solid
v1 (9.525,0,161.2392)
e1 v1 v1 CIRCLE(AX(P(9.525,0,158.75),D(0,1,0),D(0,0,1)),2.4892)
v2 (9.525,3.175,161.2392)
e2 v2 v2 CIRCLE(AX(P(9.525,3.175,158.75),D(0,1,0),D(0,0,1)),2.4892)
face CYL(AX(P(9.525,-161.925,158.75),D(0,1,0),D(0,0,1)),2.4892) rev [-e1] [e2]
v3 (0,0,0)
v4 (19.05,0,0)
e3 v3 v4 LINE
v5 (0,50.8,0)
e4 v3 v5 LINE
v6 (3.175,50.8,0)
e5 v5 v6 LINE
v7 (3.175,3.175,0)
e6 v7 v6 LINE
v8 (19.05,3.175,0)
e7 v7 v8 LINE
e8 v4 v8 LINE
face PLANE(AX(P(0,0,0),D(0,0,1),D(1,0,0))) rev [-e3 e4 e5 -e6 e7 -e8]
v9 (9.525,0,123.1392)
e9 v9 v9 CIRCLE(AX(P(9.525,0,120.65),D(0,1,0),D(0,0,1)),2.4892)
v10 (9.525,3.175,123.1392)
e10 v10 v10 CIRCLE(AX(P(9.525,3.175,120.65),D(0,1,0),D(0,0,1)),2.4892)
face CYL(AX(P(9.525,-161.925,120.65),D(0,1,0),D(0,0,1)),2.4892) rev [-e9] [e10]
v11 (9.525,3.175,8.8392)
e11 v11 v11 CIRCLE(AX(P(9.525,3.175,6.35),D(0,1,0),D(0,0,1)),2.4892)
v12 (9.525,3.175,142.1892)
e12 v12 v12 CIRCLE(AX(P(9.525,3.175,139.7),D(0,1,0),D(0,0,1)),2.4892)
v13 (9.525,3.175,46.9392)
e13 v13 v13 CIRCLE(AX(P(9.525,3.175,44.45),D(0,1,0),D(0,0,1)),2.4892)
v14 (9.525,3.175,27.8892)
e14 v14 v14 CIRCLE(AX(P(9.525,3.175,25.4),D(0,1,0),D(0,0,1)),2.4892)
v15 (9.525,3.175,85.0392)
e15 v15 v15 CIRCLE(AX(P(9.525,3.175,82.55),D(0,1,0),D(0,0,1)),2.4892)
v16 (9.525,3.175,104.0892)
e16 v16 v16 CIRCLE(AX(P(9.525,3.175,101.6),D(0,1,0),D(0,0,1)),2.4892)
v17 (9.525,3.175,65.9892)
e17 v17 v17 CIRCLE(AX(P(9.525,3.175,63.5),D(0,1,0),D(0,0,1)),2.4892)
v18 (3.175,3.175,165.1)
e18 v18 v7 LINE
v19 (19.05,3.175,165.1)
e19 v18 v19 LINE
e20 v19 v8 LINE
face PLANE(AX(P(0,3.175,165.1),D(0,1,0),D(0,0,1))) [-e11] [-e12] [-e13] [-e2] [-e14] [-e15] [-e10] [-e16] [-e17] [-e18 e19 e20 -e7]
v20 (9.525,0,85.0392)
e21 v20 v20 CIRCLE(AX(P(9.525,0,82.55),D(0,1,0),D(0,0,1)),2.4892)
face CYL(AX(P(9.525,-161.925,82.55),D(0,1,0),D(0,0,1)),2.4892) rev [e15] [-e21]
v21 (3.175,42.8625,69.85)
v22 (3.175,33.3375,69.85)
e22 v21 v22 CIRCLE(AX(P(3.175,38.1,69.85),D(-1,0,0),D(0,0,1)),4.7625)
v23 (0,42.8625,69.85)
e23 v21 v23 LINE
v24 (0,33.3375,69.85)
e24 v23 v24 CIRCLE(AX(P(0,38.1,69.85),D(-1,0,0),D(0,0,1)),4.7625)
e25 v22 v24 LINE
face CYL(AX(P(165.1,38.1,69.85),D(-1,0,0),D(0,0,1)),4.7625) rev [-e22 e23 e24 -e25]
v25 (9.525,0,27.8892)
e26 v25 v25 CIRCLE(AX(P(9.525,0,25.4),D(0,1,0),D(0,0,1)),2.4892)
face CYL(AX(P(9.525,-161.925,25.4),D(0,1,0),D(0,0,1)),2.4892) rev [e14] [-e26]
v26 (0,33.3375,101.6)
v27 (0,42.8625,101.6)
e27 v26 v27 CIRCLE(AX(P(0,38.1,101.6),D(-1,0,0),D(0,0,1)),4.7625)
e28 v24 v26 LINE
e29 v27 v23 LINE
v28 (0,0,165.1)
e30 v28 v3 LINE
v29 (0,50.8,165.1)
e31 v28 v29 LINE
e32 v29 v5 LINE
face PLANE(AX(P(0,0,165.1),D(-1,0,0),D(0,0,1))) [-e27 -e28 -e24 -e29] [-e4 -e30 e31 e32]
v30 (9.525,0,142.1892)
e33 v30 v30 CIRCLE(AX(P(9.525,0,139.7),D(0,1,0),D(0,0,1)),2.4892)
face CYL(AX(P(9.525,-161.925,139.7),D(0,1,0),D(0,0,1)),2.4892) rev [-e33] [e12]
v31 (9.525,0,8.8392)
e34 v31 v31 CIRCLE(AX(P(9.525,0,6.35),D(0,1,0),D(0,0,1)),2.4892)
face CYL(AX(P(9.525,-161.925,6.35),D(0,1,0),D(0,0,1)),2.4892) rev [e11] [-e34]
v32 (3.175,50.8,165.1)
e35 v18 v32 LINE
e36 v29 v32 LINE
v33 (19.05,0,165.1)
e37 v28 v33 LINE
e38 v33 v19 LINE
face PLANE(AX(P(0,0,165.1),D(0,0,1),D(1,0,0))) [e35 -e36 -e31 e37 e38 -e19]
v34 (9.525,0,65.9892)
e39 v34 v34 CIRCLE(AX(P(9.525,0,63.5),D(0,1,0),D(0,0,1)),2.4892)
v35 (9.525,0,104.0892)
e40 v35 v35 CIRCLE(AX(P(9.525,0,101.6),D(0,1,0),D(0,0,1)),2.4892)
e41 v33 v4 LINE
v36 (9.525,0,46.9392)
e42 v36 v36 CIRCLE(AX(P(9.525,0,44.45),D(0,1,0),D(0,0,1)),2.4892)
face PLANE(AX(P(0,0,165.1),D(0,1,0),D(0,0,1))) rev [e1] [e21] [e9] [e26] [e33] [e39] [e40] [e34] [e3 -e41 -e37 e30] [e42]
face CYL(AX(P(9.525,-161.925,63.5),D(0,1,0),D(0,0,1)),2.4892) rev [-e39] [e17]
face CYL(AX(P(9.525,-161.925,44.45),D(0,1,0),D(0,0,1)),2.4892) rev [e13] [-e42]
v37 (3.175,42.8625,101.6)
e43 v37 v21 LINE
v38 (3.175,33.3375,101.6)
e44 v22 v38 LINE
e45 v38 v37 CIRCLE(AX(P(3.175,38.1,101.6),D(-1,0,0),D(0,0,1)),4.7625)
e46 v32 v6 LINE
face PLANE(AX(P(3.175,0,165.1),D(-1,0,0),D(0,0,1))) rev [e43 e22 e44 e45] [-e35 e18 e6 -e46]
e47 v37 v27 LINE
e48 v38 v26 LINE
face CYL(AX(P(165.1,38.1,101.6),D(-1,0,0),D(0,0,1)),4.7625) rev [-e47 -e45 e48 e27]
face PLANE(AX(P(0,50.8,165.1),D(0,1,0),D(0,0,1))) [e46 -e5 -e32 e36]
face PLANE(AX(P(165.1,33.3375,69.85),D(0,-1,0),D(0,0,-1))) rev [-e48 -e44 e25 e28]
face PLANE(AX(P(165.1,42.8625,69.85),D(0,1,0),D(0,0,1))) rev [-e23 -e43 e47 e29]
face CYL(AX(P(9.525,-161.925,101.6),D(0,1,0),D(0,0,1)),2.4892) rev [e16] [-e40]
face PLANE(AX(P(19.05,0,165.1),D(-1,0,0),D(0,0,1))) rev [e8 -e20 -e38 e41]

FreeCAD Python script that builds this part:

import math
import FreeCAD as App
import Part
import Sketcher

V = App.Vector
Q = App.Units.Quantity


def add_polygon(sketch, points):
    """Adds a closed chain of lines whose ends are joined by coincident constraints."""
    first, n = sketch.GeometryCount, len(points)
    for a, b in zip(points, points[1:] + points[:1]):
        sketch.addGeometry(Part.LineSegment(App.Vector(*a, 0), App.Vector(*b, 0)), False)
    for i in range(n):
        sketch.addConstraint(Sketcher.Constraint("Coincident", first + i, 2, first + (i + 1) % n, 1))

doc = App.newDocument("Part")
body = doc.addObject("PartDesign::Body", "Body")

# Sketch on XY plane
sketch1 = body.newObject("Sketcher::SketchObject", "Sketch")
sketch1.AttachmentSupport = (doc.getObject("XY_Plane"), [""])
sketch1.MapMode = "FlatFace"
add_polygon(sketch1, [(0, 50.8), (0, 0), (19.1, 0), (19.1, 3.2), (3.2, 3.2), (3.2, 50.8)])  # lines 0-5
sketch1.addConstraint(Sketcher.Constraint("Vertical", 0))
sketch1.addConstraint(Sketcher.Constraint("Horizontal", 1))
sketch1.addConstraint(Sketcher.Constraint("Vertical", 2))
sketch1.addConstraint(Sketcher.Constraint("Horizontal", 3))
sketch1.addConstraint(Sketcher.Constraint("Vertical", 4))
sketch1.addConstraint(Sketcher.Constraint("Horizontal", 5))
sketch1.addConstraint(Sketcher.Constraint("Coincident", 0, 2, -1, 1))
sketch1.addConstraint(Sketcher.Constraint("Equal", 5, 2))
sketch1.addConstraint(Sketcher.Constraint("DistanceY", 0, 2, 0, 1, Q("2 in")))
sketch1.addConstraint(Sketcher.Constraint("DistanceX", 1, 1, 1, 2, Q("0.75 in")))
sketch1.addConstraint(Sketcher.Constraint("DistanceX", 3, 2, 3, 1, Q("0.625 in")))
pad1 = body.newObject("PartDesign::Pad", "Pad")
pad1.Profile = sketch1
pad1.Length = Q("6.5 in")

# Sketch on XZ plane
sketch2 = body.newObject("Sketcher::SketchObject", "Sketch001")
sketch2.AttachmentSupport = (doc.getObject("XZ_Plane"), [""])
sketch2.MapMode = "FlatFace"
sketch2.AttachmentOffset = App.Placement(V(0, 0, -0.125 * 25.4), App.Rotation())
sketch2.addGeometry(Part.Circle(V(9.5, 6.3, 0), V(0, 0, 1), 2.5), False)
sketch2.addGeometry(Part.Circle(V(9.5, 25.4, 0), V(0, 0, 1), 2.5), False)
sketch2.addGeometry(Part.Circle(V(9.5, 44.5, 0), V(0, 0, 1), 2.5), False)
sketch2.addGeometry(Part.Circle(V(9.5, 63.5, 0), V(0, 0, 1), 2.5), False)
sketch2.addGeometry(Part.Circle(V(9.5, 82.5, 0), V(0, 0, 1), 2.5), False)
sketch2.addGeometry(Part.Circle(V(9.5, 101.6, 0), V(0, 0, 1), 2.5), False)
sketch2.addGeometry(Part.Circle(V(9.5, 120.7, 0), V(0, 0, 1), 2.5), False)
sketch2.addGeometry(Part.Circle(V(9.5, 139.7, 0), V(0, 0, 1), 2.5), False)
sketch2.addGeometry(Part.Circle(V(9.5, 158.8, 0), V(0, 0, 1), 2.5), False)
sketch2.addConstraint(Sketcher.Constraint("Equal", 0, 1))
sketch2.addConstraint(Sketcher.Constraint("Equal", 1, 2))
sketch2.addConstraint(Sketcher.Constraint("Equal", 2, 3))
sketch2.addConstraint(Sketcher.Constraint("Equal", 3, 4))
sketch2.addConstraint(Sketcher.Constraint("Equal", 4, 5))
sketch2.addConstraint(Sketcher.Constraint("Equal", 5, 6))
sketch2.addConstraint(Sketcher.Constraint("Equal", 6, 7))
sketch2.addConstraint(Sketcher.Constraint("Equal", 7, 8))
sketch2.addConstraint(Sketcher.Constraint("Vertical", 0, 3, 1, 3))
sketch2.addConstraint(Sketcher.Constraint("Vertical", 1, 3, 2, 3))
sketch2.addConstraint(Sketcher.Constraint("Vertical", 2, 3, 3, 3))
sketch2.addConstraint(Sketcher.Constraint("Vertical", 3, 3, 4, 3))
sketch2.addConstraint(Sketcher.Constraint("Vertical", 4, 3, 5, 3))
sketch2.addConstraint(Sketcher.Constraint("Vertical", 5, 3, 6, 3))
sketch2.addConstraint(Sketcher.Constraint("Vertical", 6, 3, 7, 3))
sketch2.addConstraint(Sketcher.Constraint("Vertical", 7, 3, 8, 3))
sketch2.addConstraint(Sketcher.Constraint("Diameter", 0, Q("0.196 in")))
sketch2.addConstraint(Sketcher.Constraint("DistanceY", -1, 1, 1, 3, Q("1 in")))
sketch2.addConstraint(Sketcher.Constraint("DistanceY", -1, 1, 5, 3, Q("4 in")))
sketch2.addConstraint(Sketcher.Constraint("DistanceY", 0, 3, 4, 3, Q("3 in")))
sketch2.addConstraint(Sketcher.Constraint("DistanceY", 2, 3, 6, 3, Q("3 in")))
sketch2.addConstraint(Sketcher.Constraint("DistanceY", 3, 3, 7, 3, Q("3 in")))
sketch2.addConstraint(Sketcher.Constraint("DistanceY", 4, 3, 8, 3, Q("3 in")))
sketch2.addConstraint(Sketcher.Constraint("DistanceY", -1, 1, 3, 3, Q("2.5 in")))
sketch2.addConstraint(Sketcher.Constraint("DistanceY", 0, 3, 2, 3, Q("1.5 in")))
sketch2.addConstraint(Sketcher.Constraint("DistanceY", -1, 1, 0, 3, Q("0.25 in")))
sketch2.addConstraint(Sketcher.Constraint("DistanceX", -1, 1, 0, 3, Q("0.375 in")))
pocket1 = body.newObject("PartDesign::Pocket", "Pocket")
pocket1.Profile = sketch2
pocket1.Length = Q("6.5 in")
pocket1.Reversed = True

# Sketch on YZ plane
sketch3 = body.newObject("Sketcher::SketchObject", "Sketch002")
sketch3.AttachmentSupport = (doc.getObject("YZ_Plane"), [""])
sketch3.MapMode = "FlatFace"
sketch3.addGeometry(Part.LineSegment(V(42.9, 101.6, 0), V(42.9, 69.8, 0)), False)
sketch3.addGeometry(Part.ArcOfCircle(Part.Circle(V(38.1, 69.8, 0), V(0, 0, 1), 4.8), math.radians(180), math.radians(360)), False)
sketch3.addGeometry(Part.LineSegment(V(33.3, 69.8, 0), V(33.3, 101.6, 0)), False)
sketch3.addGeometry(Part.ArcOfCircle(Part.Circle(V(38.1, 101.6, 0), V(0, 0, 1), 4.8), math.radians(0), math.radians(180)), False)
sketch3.addConstraint(Sketcher.Constraint("Tangent", 0, 2, 1, 2))
sketch3.addConstraint(Sketcher.Constraint("Tangent", 1, 1, 2, 1))
sketch3.addConstraint(Sketcher.Constraint("Tangent", 2, 2, 3, 2))
sketch3.addConstraint(Sketcher.Constraint("Tangent", 3, 1, 0, 1))
sketch3.addConstraint(Sketcher.Constraint("Vertical", 0))
sketch3.addConstraint(Sketcher.Constraint("Vertical", 2))
sketch3.addConstraint(Sketcher.Constraint("DistanceY", -1, 1, 3, 3, Q("4 in")))
sketch3.addConstraint(Sketcher.Constraint("Radius", 1, Q("0.1875 in")))
sketch3.addConstraint(Sketcher.Constraint("DistanceY", 0, 2, 0, 1, Q("1.25 in")))
sketch3.addConstraint(Sketcher.Constraint("DistanceX", -1, 1, 1, 3, Q("1.5 in")))
pocket2 = body.newObject("PartDesign::Pocket", "Pocket001")
pocket2.Profile = sketch3
pocket2.Length = Q("6.5 in")
pocket2.Reversed = True

doc.recompute()
